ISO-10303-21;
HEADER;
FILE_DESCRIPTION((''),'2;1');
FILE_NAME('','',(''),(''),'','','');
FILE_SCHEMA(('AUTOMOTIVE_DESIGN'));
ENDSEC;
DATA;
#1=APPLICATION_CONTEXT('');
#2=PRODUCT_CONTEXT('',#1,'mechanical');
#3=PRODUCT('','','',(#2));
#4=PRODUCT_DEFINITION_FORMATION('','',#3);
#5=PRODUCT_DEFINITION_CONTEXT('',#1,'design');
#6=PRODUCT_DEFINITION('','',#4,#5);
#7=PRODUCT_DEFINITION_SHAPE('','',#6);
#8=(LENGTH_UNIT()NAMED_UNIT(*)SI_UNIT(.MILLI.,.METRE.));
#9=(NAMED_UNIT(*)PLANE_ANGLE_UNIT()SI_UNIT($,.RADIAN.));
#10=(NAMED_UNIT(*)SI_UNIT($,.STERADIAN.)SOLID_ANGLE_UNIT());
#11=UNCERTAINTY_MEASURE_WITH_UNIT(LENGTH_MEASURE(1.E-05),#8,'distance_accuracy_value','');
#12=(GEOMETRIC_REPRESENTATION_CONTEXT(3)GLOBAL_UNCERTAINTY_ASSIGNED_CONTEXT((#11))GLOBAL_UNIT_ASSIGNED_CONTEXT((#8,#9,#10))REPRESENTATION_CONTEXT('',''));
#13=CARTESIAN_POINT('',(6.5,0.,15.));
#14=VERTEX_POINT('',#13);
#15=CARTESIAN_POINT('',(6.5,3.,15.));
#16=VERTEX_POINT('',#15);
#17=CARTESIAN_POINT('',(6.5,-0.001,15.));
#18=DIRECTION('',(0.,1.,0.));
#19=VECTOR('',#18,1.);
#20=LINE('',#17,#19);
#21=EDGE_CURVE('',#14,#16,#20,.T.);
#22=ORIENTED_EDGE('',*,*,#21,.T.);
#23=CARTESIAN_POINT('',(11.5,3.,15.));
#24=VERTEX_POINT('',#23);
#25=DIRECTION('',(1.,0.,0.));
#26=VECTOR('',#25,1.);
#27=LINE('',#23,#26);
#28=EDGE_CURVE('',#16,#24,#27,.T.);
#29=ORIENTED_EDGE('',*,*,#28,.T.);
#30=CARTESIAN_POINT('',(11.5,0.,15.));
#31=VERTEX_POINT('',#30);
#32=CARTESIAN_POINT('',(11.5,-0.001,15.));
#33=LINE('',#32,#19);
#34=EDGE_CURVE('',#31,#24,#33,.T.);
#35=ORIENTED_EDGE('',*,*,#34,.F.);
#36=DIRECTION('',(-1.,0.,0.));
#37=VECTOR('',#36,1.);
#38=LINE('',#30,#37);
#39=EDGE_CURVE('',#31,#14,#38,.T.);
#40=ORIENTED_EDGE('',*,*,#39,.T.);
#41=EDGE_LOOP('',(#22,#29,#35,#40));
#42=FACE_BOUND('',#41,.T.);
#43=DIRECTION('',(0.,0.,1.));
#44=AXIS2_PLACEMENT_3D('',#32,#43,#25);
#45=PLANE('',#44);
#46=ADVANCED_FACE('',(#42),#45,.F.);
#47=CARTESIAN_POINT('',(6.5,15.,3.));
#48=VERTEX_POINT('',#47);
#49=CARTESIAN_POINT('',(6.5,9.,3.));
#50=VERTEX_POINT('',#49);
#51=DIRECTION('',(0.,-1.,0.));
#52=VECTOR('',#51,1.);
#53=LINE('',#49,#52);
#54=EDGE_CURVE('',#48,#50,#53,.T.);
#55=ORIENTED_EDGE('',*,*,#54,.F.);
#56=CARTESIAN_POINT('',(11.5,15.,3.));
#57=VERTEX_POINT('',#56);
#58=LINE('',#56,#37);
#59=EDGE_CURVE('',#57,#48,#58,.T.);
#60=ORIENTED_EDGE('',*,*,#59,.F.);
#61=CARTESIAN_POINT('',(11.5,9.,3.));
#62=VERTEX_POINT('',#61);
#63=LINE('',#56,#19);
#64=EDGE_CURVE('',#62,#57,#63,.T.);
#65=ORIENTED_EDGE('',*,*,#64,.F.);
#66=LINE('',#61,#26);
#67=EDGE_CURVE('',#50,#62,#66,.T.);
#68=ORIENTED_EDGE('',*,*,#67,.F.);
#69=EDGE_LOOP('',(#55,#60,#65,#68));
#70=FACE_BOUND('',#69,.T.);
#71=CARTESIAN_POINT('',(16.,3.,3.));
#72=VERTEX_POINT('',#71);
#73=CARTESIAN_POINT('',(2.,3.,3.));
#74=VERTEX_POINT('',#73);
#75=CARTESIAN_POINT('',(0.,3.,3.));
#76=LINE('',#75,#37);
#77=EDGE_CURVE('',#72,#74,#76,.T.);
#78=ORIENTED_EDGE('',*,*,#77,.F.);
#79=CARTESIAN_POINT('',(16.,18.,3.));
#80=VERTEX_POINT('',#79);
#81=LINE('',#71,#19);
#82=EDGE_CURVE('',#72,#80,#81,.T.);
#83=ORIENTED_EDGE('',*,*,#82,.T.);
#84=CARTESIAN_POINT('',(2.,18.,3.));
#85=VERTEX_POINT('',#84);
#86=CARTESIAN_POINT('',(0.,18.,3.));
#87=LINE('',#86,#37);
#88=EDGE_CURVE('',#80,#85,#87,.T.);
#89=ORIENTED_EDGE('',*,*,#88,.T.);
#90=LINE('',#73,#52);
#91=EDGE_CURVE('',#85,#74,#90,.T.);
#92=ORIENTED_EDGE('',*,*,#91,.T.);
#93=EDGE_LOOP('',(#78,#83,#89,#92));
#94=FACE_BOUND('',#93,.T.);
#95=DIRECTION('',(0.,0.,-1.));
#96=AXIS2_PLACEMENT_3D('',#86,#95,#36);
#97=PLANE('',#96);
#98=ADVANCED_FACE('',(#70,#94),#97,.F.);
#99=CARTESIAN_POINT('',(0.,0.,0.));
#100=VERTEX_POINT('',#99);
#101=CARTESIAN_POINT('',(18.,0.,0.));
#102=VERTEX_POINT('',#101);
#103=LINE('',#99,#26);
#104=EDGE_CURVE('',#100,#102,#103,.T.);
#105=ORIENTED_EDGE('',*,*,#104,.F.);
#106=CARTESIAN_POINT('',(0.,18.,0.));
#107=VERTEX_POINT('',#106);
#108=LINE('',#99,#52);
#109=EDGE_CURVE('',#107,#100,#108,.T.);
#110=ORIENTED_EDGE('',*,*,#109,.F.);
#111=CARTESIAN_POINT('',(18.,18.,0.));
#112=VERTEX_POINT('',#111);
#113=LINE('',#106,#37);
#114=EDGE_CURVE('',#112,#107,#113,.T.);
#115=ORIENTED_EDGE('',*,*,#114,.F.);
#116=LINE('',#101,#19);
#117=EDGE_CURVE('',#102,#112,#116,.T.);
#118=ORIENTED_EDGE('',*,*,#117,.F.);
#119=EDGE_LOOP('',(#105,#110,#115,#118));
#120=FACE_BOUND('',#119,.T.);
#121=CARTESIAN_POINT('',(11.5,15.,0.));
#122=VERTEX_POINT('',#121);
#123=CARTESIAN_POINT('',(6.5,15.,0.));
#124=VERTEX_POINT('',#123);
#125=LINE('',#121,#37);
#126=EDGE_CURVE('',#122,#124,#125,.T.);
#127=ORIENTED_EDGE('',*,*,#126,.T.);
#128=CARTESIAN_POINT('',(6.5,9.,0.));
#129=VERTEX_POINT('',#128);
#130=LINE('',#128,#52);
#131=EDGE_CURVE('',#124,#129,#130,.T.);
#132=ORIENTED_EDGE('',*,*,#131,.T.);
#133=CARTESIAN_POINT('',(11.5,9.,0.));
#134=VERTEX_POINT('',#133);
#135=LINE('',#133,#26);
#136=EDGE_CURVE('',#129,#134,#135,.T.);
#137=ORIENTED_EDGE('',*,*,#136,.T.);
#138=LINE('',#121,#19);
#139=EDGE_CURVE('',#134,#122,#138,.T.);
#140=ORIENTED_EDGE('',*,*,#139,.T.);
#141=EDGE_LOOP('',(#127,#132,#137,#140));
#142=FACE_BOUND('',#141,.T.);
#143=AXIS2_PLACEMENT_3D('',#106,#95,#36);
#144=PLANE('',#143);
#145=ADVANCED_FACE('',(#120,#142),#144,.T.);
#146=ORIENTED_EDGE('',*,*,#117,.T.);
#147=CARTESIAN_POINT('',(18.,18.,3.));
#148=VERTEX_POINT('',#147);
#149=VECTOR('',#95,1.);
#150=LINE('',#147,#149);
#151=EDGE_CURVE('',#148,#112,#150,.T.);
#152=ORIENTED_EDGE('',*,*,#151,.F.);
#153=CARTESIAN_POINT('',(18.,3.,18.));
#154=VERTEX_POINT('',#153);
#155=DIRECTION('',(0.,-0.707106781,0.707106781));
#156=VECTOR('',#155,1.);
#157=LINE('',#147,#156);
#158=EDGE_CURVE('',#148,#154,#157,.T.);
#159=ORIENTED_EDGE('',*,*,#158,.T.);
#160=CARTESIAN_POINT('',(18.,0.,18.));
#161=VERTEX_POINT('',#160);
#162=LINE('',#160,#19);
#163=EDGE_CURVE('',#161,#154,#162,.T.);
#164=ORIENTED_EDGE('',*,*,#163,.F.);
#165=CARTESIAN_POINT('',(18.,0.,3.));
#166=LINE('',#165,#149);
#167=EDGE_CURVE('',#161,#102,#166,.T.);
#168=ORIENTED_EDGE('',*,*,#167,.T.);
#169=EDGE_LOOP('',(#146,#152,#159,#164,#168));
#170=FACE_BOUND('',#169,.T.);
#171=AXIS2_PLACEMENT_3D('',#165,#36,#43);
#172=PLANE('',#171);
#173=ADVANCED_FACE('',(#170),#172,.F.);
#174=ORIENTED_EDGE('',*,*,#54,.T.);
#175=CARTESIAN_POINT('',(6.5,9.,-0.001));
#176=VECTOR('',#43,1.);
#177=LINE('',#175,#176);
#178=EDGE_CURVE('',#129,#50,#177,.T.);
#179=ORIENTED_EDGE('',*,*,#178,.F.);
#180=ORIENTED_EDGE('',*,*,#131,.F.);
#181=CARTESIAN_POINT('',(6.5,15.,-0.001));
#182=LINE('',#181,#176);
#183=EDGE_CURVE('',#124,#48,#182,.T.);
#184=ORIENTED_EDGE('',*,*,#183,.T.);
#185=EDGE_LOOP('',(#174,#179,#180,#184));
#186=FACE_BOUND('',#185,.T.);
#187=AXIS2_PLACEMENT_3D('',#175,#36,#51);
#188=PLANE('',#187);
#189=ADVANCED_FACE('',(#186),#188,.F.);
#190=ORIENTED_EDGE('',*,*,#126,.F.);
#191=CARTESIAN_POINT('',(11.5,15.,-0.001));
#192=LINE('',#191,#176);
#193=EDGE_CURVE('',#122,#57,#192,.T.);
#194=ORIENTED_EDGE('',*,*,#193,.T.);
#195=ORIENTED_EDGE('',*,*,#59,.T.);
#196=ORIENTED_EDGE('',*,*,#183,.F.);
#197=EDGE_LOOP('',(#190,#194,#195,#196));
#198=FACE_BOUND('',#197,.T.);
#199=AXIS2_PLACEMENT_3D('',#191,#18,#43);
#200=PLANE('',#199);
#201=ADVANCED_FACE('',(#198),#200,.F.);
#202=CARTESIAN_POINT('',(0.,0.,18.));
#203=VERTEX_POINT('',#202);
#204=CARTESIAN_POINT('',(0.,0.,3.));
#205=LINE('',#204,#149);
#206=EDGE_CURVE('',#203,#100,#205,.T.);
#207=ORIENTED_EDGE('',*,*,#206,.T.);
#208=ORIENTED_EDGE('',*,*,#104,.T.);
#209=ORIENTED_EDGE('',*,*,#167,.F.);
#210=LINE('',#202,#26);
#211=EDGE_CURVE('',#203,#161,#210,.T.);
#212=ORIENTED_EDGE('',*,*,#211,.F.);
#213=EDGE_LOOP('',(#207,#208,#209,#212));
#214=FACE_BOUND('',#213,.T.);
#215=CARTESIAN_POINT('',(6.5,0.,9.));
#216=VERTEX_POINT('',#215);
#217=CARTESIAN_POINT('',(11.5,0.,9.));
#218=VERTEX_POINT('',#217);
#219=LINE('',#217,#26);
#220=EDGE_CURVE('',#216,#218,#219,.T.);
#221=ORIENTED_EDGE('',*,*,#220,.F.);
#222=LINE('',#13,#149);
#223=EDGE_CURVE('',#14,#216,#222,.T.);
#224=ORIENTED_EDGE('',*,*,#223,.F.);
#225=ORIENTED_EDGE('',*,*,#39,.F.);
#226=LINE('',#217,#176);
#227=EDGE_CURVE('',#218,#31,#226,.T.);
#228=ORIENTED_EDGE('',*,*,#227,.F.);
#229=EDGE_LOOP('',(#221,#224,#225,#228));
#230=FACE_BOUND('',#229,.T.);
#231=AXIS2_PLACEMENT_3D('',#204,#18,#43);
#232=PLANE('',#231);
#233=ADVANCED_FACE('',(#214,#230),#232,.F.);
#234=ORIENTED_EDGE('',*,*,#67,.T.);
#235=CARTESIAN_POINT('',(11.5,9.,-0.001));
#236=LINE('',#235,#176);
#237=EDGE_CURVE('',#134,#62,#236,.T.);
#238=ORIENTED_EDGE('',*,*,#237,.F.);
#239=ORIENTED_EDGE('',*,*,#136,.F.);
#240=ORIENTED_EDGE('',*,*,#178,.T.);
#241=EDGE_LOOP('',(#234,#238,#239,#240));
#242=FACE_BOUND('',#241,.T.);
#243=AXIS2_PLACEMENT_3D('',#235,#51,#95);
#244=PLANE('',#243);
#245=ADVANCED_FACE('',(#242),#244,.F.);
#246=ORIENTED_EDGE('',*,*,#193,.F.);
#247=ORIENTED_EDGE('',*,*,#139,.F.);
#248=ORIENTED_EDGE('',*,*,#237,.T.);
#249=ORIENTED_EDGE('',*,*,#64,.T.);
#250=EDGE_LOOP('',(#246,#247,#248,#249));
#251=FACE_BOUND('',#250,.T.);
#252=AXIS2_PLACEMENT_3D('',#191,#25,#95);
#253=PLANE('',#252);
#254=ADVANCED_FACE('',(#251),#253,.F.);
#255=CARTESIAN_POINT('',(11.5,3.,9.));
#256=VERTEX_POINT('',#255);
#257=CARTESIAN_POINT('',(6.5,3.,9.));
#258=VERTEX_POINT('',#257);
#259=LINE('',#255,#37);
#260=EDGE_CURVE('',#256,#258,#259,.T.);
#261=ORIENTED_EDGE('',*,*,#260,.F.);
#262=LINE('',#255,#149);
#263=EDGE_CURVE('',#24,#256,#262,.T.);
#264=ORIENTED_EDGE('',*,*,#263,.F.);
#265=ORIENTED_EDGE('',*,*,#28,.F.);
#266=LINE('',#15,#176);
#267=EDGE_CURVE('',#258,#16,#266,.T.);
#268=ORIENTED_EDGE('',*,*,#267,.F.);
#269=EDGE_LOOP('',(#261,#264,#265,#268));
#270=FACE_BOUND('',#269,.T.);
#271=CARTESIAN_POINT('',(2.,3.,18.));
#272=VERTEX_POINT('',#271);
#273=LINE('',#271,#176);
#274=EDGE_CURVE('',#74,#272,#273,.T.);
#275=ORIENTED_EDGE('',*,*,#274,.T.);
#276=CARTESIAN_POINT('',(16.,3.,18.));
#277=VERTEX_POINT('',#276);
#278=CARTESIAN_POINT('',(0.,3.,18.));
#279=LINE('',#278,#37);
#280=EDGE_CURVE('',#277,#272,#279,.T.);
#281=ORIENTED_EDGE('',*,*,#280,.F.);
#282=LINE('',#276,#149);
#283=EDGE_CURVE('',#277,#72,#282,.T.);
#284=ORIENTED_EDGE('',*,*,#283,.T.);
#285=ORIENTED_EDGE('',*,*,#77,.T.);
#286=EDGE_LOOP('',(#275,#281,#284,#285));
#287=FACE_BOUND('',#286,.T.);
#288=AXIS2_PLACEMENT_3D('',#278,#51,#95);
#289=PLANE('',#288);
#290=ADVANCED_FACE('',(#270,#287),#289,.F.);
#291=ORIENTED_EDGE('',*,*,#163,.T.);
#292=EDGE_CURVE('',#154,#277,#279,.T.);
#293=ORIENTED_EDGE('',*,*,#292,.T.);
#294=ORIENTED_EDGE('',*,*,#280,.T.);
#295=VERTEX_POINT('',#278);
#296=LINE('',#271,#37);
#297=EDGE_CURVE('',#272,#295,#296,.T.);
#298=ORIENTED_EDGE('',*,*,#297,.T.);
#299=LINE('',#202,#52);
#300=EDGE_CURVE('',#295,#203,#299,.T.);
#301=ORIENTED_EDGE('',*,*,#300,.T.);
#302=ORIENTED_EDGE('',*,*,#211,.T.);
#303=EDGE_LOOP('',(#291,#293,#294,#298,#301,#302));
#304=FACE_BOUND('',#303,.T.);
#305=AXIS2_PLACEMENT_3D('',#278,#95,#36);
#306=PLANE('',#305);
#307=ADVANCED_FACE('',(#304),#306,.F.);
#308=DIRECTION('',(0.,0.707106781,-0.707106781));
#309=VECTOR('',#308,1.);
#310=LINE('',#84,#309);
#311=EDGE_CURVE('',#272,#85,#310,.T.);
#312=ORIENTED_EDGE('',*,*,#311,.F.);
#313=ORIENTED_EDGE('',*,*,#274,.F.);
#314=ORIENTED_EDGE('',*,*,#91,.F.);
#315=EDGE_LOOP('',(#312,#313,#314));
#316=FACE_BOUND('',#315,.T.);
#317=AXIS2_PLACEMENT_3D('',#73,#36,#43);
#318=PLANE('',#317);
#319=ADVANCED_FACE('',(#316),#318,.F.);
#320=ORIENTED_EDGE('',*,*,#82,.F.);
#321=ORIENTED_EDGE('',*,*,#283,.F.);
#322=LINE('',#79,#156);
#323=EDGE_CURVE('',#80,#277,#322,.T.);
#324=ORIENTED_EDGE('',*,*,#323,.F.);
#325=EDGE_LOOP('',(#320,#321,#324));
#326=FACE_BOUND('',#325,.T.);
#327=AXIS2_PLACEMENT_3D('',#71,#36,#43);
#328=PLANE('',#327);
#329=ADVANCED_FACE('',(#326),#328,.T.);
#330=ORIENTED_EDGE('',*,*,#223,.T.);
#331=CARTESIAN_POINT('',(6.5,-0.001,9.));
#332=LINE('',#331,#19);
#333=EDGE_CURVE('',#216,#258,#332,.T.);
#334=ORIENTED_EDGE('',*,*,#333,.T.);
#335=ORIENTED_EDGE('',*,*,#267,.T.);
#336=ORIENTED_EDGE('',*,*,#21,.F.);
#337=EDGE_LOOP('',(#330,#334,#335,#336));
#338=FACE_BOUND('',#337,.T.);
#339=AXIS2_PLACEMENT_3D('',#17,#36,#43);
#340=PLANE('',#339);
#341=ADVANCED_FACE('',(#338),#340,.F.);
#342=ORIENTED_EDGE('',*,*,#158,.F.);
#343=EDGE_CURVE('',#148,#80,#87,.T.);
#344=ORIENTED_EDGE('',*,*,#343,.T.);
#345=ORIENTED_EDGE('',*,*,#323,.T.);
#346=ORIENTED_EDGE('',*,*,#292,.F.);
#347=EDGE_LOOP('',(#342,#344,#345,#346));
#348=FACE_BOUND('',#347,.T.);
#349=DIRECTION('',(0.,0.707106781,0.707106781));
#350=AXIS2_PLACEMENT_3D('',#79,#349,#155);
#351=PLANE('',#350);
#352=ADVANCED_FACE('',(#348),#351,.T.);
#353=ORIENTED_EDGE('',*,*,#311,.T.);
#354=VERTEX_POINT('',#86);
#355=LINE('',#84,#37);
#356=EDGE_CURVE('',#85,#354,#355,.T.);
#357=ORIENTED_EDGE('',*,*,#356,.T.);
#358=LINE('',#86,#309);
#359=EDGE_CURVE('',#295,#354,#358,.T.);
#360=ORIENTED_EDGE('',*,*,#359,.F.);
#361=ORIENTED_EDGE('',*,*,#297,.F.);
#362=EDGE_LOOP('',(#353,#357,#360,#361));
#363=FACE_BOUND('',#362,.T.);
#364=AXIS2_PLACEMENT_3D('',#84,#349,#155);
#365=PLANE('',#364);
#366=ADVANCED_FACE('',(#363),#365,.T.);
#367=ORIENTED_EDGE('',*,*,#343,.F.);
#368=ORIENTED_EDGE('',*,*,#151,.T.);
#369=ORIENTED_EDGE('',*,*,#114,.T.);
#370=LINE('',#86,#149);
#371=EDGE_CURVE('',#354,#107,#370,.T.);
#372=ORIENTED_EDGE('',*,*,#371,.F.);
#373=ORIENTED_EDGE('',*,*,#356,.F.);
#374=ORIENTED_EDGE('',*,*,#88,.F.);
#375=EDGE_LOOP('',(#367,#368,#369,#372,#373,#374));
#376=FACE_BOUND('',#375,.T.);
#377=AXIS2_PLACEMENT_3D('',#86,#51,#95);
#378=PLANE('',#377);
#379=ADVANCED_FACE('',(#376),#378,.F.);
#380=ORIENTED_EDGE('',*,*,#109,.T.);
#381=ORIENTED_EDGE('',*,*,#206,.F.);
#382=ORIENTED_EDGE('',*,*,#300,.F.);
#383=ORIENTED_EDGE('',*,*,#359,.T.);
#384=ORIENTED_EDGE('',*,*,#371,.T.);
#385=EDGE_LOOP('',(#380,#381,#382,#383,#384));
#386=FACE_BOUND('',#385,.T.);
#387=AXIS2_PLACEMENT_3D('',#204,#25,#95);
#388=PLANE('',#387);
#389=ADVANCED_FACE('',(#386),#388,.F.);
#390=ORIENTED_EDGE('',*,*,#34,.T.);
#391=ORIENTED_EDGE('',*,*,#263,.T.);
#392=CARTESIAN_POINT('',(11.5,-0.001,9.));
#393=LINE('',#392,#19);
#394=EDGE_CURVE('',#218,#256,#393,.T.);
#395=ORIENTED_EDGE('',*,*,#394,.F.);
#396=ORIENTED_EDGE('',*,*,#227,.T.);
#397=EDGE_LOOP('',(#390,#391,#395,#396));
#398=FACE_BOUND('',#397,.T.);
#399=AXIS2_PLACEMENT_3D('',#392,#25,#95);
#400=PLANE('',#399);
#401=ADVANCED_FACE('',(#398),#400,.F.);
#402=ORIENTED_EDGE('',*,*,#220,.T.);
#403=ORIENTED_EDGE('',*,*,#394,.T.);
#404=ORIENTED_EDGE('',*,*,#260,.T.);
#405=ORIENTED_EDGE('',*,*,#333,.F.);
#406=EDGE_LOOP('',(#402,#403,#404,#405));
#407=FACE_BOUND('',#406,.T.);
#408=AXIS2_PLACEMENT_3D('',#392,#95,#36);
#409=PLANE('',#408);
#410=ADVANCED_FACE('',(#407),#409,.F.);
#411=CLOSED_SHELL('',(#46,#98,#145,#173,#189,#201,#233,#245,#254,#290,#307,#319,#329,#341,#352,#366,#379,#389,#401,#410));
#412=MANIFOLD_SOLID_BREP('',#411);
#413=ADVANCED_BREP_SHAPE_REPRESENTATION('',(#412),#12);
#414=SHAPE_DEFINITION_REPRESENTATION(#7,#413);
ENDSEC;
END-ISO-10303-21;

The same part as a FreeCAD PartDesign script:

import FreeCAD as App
import Part
import Sketcher
from FreeCAD import Vector
Q = App.Units.Quantity


def add_polygon(sketch, points):
    """Adds a closed chain of lines whose ends are joined by coincident constraints."""
    first, n = sketch.GeometryCount, len(points)
    for a, b in zip(points, points[1:] + points[:1]):
        sketch.addGeometry(Part.LineSegment(App.Vector(*a, 0), App.Vector(*b, 0)), False)
    for i in range(n):
        sketch.addConstraint(Sketcher.Constraint("Coincident", first + i, 2, first + (i + 1) % n, 1))

doc = App.newDocument("Part")
body = doc.addObject("PartDesign::Body", "Body")

# Sketch on XY plane
sketch1 = body.newObject("Sketcher::SketchObject", "Sketch")
sketch1.AttachmentSupport = (doc.getObject("XY_Plane"), [""])
sketch1.MapMode = "FlatFace"
add_polygon(sketch1, [(0, 18), (0, 0), (18, 0), (18, 18)])  # lines 0-3
sketch1.addConstraint([
    Sketcher.Constraint("Vertical", 0),
    Sketcher.Constraint("Horizontal", 1),
    Sketcher.Constraint("Vertical", 2),
    Sketcher.Constraint("Horizontal", 3),
    Sketcher.Constraint("Coincident", 0, 2, -1, 1),
    Sketcher.Constraint("Equal", 3, 0),
    Sketcher.Constraint("DistanceX", 1, 1, 1, 2, Q("18 mm")),
])
pad1 = body.newObject("PartDesign::Pad", "Pad")
pad1.Profile = sketch1
pad1.Length = 3

# Sketch on XY plane
sketch2 = body.newObject("Sketcher::SketchObject", "Sketch001")
sketch2.AttachmentSupport = (doc.getObject("XY_Plane"), [""])
sketch2.MapMode = "FlatFace"
sketch2.AttachmentOffset = App.Placement(Vector(0, 0, 3), App.Rotation())
add_polygon(sketch2, [(0, 3), (0, 0), (18, 0), (18, 3)])  # lines 0-3
sketch2.addConstraint([
    Sketcher.Constraint("Vertical", 0),
    Sketcher.Constraint("Horizontal", 1),
    Sketcher.Constraint("Vertical", 2),
    Sketcher.Constraint("Horizontal", 3),
    Sketcher.Constraint("Coincident", 0, 2, -1, 1),
    Sketcher.Constraint("DistanceX", 1, 1, 1, 2, Q("18 mm")),
    Sketcher.Constraint("DistanceY", 0, 2, 0, 1, Q("3 mm")),
])
pad2 = body.newObject("PartDesign::Pad", "Pad001")
pad2.Profile = sketch2
pad2.Length = 15

# Sketch on YZ plane
sketch3 = body.newObject("Sketcher::SketchObject", "Sketch002")
sketch3.AttachmentSupport = (doc.getObject("YZ_Plane"), [""])
sketch3.MapMode = "FlatFace"
sketch3.AttachmentOffset = App.Placement(Vector(0, 0, 18), App.Rotation())
add_polygon(sketch3, [(18, 3), (3, 18), (3, 3)])  # lines 0-2
sketch3.addConstraint([
    Sketcher.Constraint("Vertical", 1),
    Sketcher.Constraint("Horizontal", 2),
    Sketcher.Constraint("Equal", 2, 1),
    Sketcher.Constraint("DistanceX", 2, 1, 2, 2, Q("15 mm")),
    Sketcher.Constraint("DistanceX", -1, 1, 0, 2, Q("3 mm")),
    Sketcher.Constraint("DistanceY", -1, 1, 0, 2, Q("18 mm")),
])
pad3 = body.newObject("PartDesign::Pad", "Pad002")
pad3.Profile = sketch3
pad3.Length = 2
pad3.Reversed = True

# Sketch on YZ plane
sketch4 = body.newObject("Sketcher::SketchObject", "Sketch003")
sketch4.AttachmentSupport = (doc.getObject("YZ_Plane"), [""])
sketch4.MapMode = "FlatFace"
add_polygon(sketch4, [(3, 18), (18, 3), (3, 3)])  # lines 0-2
sketch4.addConstraint([
    Sketcher.Constraint("Horizontal", 1),
    Sketcher.Constraint("Vertical", 2),
    Sketcher.Constraint("Equal", 1, 2),
    Sketcher.Constraint("DistanceX", 1, 2, 1, 1, Q("15 mm")),
    Sketcher.Constraint("DistanceX", -1, 1, 0, 2, Q("18 mm")),
    Sketcher.Constraint("DistanceY", -1, 1, 0, 2, Q("3 mm")),
])
pad4 = body.newObject("PartDesign::Pad", "Pad003")
pad4.Profile = sketch4
pad4.Length = 2

# Sketch on XZ plane
sketch5 = body.newObject("Sketcher::SketchObject", "Sketch004")
sketch5.AttachmentSupport = (doc.getObject("XZ_Plane"), [""])
sketch5.MapMode = "FlatFace"
sketch5.AttachmentOffset = App.Placement(Vector(0, 0, -3), App.Rotation())
add_polygon(sketch5, [(6, 9), (6, 15), (12, 15), (12, 9)])  # lines 0-3
sketch5.addConstraint([
    Sketcher.Constraint("Vertical", 0),
    Sketcher.Constraint("Horizontal", 1),
    Sketcher.Constraint("Vertical", 2),
    Sketcher.Constraint("Horizontal", 3),
    Sketcher.Constraint("DistanceX", 1, 1, 1, 2, Q("5 mm")),
    Sketcher.Constraint("DistanceY", 0, 1, 0, 2, Q("6 mm")),
    Sketcher.Constraint("DistanceY", -1, 1, 0, 2, Q("15 mm")),
    Sketcher.Constraint("DistanceX", -1, 1, 0, 2, Q("6.5 mm")),
])
pocket1 = body.newObject("PartDesign::Pocket", "Pocket")
pocket1.Profile = sketch5
pocket1.Type = "UpToFirst"
pocket1.Reversed = True

# Sketch on XY plane
sketch6 = body.newObject("Sketcher::SketchObject", "Sketch005")
sketch6.AttachmentSupport = (doc.getObject("XY_Plane"), [""])
sketch6.MapMode = "FlatFace"
sketch6.AttachmentOffset = App.Placement(Vector(0, 0, 3), App.Rotation())
add_polygon(sketch6, [(12, 9), (12, 15), (6, 15), (6, 9)])  # lines 0-3
sketch6.addConstraint([
    Sketcher.Constraint("Vertical", 0),
    Sketcher.Constraint("Horizontal", 1),
    Sketcher.Constraint("Vertical", 2),
    Sketcher.Constraint("Horizontal", 3),
    Sketcher.Constraint("DistanceX", 1, 2, 1, 1, Q("5 mm")),
    Sketcher.Constraint("DistanceY", 0, 1, 0, 2, Q("6 mm")),
    Sketcher.Constraint("DistanceY", -1, 1, 0, 2, Q("15 mm")),
    Sketcher.Constraint("DistanceX", -1, 1, 0, 2, Q("11.5 mm")),
])
pocket2 = body.newObject("PartDesign::Pocket", "Pocket001")
pocket2.Profile = sketch6
pocket2.Type = "UpToFirst"

doc.recompute()
